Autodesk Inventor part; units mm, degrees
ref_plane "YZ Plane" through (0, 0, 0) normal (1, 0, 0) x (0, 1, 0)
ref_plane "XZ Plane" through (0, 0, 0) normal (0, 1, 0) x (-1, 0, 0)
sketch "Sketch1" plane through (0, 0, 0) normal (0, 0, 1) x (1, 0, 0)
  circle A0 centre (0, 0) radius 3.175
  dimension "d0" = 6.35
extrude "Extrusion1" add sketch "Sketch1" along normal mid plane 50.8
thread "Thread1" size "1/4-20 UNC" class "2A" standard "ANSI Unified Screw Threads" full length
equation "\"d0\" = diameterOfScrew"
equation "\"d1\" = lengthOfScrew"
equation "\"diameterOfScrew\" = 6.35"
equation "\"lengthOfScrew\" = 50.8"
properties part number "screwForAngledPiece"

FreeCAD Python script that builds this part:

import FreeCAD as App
import Part
import Sketcher
from FreeCAD import Vector
Q = App.Units.Quantity

doc = App.newDocument("Part")
body = doc.addObject("PartDesign::Body", "Body")

# Sketch on XY plane
sketch1 = body.newObject("Sketcher::SketchObject", "Sketch")
sketch1.AttachmentSupport = (doc.getObject("XY_Plane"), [""])
sketch1.MapMode = "FlatFace"
sketch1.addGeometry(Part.Circle(Vector(0, 0, 0), Vector(0, 0, 1), 3.2), False)
sketch1.addConstraint([
    Sketcher.Constraint("Coincident", 0, 3, -1, 1),
    Sketcher.Constraint("Diameter", 0, Q("0.25 in")),
])
pad1 = body.newObject("PartDesign::Pad", "Pad")
pad1.Profile = sketch1
pad1.Length = Q("2 in")
pad1.Midplane = True

doc.recompute()
